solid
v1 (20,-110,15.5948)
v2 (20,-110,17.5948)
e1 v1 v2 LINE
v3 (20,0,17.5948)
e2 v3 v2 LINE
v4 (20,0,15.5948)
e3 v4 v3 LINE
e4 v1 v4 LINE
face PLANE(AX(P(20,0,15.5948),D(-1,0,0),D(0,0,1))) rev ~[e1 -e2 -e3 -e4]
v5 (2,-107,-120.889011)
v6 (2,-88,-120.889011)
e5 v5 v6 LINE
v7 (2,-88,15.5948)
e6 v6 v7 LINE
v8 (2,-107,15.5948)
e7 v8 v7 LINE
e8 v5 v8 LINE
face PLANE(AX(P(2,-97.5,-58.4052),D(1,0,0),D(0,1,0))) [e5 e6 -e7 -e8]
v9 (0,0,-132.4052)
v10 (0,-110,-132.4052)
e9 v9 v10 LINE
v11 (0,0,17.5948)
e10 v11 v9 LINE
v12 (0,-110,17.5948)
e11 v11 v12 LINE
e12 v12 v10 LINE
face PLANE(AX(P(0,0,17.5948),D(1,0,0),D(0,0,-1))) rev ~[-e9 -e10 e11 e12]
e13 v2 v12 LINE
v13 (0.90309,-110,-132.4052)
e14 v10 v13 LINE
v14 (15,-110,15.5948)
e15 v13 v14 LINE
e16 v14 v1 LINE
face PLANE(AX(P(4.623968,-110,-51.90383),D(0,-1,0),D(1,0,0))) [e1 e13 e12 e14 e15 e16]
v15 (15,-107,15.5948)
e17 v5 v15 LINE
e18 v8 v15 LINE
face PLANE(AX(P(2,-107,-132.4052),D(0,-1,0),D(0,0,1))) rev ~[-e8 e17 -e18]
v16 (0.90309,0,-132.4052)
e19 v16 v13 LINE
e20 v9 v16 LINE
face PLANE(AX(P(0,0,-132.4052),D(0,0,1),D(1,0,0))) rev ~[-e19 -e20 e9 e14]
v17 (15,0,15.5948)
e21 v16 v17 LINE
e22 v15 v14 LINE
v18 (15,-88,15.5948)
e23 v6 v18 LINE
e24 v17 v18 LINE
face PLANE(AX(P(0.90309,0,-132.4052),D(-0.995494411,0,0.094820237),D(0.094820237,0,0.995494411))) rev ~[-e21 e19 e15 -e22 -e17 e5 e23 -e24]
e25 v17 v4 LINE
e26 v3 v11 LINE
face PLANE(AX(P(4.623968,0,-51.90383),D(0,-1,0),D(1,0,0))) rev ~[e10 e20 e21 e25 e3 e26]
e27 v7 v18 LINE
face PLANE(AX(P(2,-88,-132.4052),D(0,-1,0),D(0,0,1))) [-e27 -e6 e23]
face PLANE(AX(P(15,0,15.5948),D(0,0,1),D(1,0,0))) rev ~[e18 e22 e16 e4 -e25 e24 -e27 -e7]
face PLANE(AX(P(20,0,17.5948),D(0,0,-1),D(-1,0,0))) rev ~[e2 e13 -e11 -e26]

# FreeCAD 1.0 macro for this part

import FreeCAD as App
import Part
import Sketcher
from FreeCAD import Vector
Q = App.Units.Quantity


def add_polygon(sketch, points):
    """Adds a closed chain of lines whose ends are joined by coincident constraints."""
    first, n = sketch.GeometryCount, len(points)
    for a, b in zip(points, points[1:] + points[:1]):
        sketch.addGeometry(Part.LineSegment(App.Vector(*a, 0), App.Vector(*b, 0)), False)
    for i in range(n):
        sketch.addConstraint(Sketcher.Constraint("Coincident", first + i, 2, first + (i + 1) % n, 1))

doc = App.newDocument("Part")
body = doc.addObject("PartDesign::Body", "Body")

sketch1 = doc.addObject("Sketcher::SketchObject", "Sketch")
body.addObject(sketch1)
sketch1.AttachmentSupport = (doc.XZ_Plane, [""])
sketch1.MapMode = "FlatFace"
add_polygon(sketch1, [(20, 17.6), (0, 17.6), (0, -132.4), (0.9, -132.4), (15, 15.6), (20, 15.6)])
sketch1.addConstraint(Sketcher.Constraint("Horizontal", 0))
sketch1.addConstraint(Sketcher.Constraint("Vertical", 1))
sketch1.addConstraint(Sketcher.Constraint("Horizontal", 2))
sketch1.addConstraint(Sketcher.Constraint("Horizontal", 4))
sketch1.addConstraint(Sketcher.Constraint("Vertical", 5))
sketch1.addConstraint(Sketcher.Constraint("PointOnObject", 0, 2, -2))
sketch1.addConstraint(Sketcher.Constraint("DistanceX", 0, 2, 0, 1, Q("20 mm")))
sketch1.addConstraint(Sketcher.Constraint("DistanceX", 4, 1, 4, 2, Q("5 mm")))
sketch1.addConstraint(Sketcher.Constraint("DistanceY", 1, 2, 1, 1, Q("150 mm")))
sketch1.addConstraint(Sketcher.Constraint("DistanceY", 5, 1, 5, 2, Q("2 mm")))
sketch1.addConstraint(Sketcher.Constraint("DistanceX", 2, 1, 2, 2, Q("0.90309 mm")))
sketch1.addConstraint(Sketcher.Constraint("DistanceY", -1, 1, 0, 2, Q("17.5948 mm")))
pad1 = doc.addObject("PartDesign::Pad", "Pad")
body.addObject(pad1)
pad1.Profile = sketch1
pad1.Length = 110

sketch2 = doc.addObject("Sketcher::SketchObject", "Sketch001")
body.addObject(sketch2)
sketch2.AttachmentSupport = (doc.YZ_Plane, [""])
sketch2.MapMode = "FlatFace"
sketch2.AttachmentOffset = App.Placement(Vector(0, 0, 2), App.Rotation())
add_polygon(sketch2, [(-107, 16), (-107, -132), (-88, -132), (-88, 16)])
sketch2.addConstraint(Sketcher.Constraint("Vertical", 0))
sketch2.addConstraint(Sketcher.Constraint("Horizontal", 1))
sketch2.addConstraint(Sketcher.Constraint("Vertical", 2))
sketch2.addConstraint(Sketcher.Constraint("Horizontal", 3))
sketch2.addConstraint(Sketcher.Constraint("DistanceX", 1, 1, 1, 2, Q("19 mm")))
sketch2.addConstraint(Sketcher.Constraint("DistanceY", 0, 2, 0, 1, Q("148 mm")))
sketch2.addConstraint(Sketcher.Constraint("DistanceX", 0, 2, -1, 1, Q("107 mm")))
sketch2.addConstraint(Sketcher.Constraint("DistanceY", 0, 2, -1, 1, Q("132.4052 mm")))
pocket1 = doc.addObject("PartDesign::Pocket", "Pocket")
body.addObject(pocket1)
pocket1.Profile = sketch2
pocket1.Type = "ThroughAll"
pocket1.Reversed = True

doc.recompute()
